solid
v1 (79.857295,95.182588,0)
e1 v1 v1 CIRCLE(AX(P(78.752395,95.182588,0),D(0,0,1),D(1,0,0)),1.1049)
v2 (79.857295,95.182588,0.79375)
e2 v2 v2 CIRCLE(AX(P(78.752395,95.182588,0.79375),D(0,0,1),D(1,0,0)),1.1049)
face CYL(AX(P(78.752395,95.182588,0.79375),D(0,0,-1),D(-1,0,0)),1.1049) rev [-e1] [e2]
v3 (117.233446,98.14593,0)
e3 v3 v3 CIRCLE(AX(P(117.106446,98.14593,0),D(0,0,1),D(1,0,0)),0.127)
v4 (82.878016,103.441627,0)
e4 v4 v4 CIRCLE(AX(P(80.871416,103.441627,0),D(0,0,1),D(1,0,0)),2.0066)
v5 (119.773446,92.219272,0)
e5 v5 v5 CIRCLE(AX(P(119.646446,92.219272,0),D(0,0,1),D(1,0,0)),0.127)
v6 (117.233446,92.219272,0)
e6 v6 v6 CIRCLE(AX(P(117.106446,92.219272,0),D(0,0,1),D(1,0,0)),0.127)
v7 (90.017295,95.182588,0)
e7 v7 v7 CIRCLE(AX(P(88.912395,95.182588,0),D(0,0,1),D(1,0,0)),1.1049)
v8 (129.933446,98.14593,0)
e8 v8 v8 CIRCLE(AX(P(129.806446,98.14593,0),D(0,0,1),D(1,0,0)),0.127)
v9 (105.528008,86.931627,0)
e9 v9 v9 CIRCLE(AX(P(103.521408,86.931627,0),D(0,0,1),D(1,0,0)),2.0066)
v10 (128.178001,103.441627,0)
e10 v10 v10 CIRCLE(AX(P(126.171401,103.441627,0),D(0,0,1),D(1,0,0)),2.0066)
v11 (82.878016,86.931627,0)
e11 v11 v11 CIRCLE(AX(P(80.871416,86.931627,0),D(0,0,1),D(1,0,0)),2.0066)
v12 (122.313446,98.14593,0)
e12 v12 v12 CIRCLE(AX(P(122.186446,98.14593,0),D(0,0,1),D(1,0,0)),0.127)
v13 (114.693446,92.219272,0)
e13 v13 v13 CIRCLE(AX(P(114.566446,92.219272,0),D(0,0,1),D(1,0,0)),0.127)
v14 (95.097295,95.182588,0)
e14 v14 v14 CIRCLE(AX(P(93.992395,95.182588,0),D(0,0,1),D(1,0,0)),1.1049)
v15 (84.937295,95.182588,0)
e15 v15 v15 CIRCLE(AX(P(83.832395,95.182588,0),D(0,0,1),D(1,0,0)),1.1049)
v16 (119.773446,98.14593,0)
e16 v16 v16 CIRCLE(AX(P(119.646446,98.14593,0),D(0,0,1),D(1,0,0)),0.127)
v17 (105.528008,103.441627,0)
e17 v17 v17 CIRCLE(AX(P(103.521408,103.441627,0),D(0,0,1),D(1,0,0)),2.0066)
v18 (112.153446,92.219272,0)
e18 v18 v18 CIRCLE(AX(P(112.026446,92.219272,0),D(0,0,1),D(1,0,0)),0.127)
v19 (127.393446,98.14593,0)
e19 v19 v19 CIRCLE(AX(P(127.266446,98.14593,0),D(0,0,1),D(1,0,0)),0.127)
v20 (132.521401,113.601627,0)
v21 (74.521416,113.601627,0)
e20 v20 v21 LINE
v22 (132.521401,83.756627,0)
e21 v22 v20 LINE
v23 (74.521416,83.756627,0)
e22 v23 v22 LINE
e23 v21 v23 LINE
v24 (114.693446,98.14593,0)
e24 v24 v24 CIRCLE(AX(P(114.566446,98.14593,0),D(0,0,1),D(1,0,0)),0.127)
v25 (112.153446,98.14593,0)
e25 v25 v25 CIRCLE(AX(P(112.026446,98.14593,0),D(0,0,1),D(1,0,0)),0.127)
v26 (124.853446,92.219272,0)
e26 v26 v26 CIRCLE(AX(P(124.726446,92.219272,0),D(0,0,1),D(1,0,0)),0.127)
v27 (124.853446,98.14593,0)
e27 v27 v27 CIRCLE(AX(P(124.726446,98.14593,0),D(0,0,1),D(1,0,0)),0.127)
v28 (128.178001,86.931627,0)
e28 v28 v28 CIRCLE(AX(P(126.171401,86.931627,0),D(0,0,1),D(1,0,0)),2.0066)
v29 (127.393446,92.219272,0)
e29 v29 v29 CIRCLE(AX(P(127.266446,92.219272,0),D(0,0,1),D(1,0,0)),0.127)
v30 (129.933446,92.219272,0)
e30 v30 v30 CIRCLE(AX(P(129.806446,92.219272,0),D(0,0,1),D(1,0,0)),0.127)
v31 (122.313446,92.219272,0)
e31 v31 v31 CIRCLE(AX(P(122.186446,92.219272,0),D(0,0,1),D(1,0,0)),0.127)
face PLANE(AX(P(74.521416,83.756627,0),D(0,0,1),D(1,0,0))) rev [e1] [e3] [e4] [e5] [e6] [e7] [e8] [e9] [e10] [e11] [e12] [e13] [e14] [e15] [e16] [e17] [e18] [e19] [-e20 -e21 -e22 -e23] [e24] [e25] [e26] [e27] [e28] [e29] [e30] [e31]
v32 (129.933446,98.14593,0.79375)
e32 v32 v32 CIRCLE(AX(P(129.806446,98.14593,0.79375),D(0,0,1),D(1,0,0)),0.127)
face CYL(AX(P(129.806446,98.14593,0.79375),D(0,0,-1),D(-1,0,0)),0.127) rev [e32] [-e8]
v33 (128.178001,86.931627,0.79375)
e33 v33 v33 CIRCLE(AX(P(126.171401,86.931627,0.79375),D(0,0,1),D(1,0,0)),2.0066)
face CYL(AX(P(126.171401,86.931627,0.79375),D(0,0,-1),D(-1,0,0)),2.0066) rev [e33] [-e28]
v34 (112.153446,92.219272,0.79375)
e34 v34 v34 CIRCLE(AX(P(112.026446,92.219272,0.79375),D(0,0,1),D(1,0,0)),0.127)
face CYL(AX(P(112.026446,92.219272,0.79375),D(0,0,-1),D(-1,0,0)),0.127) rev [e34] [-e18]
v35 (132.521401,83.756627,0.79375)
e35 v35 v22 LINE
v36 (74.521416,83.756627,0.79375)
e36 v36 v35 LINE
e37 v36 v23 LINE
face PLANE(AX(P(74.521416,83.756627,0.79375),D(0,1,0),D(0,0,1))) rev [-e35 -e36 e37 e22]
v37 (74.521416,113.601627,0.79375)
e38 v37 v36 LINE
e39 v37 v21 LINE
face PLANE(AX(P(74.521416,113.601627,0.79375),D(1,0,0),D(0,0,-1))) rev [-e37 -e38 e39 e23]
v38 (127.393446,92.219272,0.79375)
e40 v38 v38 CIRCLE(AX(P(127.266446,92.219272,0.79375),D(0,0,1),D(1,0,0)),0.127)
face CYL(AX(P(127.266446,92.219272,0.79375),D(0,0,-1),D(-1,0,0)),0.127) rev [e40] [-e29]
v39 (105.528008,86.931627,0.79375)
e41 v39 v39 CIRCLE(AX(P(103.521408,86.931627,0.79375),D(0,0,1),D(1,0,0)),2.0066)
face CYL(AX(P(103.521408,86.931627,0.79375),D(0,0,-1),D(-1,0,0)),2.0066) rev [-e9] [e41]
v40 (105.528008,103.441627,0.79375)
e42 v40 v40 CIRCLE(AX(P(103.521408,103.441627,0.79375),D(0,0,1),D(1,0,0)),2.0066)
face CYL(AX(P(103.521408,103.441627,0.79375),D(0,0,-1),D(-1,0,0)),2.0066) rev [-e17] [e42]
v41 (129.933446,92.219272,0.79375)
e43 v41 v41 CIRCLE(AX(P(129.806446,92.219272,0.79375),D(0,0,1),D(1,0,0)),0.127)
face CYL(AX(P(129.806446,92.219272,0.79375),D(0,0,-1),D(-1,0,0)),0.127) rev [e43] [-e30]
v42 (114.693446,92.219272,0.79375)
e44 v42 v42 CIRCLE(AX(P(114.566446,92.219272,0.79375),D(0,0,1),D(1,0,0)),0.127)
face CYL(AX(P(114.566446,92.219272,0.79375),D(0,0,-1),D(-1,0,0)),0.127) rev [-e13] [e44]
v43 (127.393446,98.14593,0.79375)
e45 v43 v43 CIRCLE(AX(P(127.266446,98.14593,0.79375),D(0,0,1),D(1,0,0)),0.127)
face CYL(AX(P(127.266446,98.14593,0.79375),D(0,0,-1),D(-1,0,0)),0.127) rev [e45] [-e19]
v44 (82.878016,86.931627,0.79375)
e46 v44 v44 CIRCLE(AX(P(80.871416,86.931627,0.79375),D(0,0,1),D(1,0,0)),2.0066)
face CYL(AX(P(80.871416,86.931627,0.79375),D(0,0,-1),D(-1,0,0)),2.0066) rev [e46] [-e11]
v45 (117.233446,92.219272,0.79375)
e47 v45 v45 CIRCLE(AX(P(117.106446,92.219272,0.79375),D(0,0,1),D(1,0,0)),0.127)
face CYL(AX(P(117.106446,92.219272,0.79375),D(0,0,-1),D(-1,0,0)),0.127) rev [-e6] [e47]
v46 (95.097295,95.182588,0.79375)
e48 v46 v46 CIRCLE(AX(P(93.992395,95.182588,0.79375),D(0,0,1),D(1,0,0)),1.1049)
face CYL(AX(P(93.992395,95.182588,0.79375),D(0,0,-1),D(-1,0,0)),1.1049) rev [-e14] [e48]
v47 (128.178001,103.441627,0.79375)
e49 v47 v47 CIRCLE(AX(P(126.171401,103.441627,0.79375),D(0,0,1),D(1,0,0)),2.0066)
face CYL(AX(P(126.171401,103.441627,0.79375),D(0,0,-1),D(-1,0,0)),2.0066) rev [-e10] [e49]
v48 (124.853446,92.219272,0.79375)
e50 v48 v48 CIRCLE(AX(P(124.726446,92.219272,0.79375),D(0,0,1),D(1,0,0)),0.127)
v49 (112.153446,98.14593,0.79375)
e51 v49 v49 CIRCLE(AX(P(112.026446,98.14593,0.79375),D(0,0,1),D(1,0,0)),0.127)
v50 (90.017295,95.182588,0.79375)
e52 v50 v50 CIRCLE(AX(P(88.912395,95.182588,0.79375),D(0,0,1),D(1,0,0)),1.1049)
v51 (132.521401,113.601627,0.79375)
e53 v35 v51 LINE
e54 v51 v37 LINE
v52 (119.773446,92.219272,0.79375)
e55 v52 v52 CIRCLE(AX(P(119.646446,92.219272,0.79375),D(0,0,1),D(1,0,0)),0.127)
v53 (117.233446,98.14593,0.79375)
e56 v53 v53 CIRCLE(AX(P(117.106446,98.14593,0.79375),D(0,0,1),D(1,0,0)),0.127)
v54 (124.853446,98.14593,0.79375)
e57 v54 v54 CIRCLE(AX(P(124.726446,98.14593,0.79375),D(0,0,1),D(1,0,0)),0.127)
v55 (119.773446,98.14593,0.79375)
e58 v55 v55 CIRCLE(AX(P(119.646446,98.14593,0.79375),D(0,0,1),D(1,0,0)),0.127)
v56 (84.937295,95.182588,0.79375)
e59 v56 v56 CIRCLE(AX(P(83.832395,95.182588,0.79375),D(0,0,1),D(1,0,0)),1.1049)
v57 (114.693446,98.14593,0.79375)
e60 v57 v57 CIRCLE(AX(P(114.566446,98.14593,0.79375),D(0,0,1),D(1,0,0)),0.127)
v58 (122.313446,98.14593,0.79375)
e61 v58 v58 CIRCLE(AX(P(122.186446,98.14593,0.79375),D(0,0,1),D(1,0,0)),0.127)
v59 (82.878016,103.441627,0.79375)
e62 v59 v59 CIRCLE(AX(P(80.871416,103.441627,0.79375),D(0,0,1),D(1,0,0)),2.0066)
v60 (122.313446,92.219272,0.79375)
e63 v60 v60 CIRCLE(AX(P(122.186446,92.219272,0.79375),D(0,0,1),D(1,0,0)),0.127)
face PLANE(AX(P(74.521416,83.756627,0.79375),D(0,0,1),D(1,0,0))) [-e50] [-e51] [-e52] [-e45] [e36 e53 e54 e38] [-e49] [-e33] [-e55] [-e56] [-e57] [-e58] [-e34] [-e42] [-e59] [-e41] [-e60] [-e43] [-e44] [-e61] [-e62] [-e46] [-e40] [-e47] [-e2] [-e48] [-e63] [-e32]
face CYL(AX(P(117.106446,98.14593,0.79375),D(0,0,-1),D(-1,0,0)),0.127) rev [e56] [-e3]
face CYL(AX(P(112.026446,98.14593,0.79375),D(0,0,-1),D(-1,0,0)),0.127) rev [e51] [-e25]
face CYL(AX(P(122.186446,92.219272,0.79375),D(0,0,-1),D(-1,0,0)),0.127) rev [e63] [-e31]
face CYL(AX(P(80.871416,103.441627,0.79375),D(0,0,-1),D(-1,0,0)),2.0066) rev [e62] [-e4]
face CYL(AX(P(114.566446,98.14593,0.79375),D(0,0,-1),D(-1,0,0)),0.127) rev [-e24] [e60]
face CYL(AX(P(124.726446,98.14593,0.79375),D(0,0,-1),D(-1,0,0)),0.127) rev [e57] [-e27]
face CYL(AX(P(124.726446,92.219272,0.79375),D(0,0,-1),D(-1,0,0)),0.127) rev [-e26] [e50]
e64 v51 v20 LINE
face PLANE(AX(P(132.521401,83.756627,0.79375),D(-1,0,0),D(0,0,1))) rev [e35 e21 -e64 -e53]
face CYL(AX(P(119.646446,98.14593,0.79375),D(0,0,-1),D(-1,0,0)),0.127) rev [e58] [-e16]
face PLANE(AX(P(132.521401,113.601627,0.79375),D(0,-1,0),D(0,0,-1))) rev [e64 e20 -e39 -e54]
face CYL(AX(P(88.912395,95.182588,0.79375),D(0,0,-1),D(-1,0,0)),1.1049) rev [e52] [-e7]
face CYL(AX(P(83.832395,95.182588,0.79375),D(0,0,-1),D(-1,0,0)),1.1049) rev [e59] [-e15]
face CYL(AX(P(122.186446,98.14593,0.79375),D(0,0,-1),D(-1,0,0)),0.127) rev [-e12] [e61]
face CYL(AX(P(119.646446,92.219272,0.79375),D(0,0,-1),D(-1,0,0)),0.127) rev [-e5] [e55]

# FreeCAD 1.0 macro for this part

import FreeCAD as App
import Part
import Sketcher
from FreeCAD import Vector
Q = App.Units.Quantity


def add_polygon(sketch, points):
    """Adds a closed chain of lines whose ends are joined by coincident constraints."""
    first, n = sketch.GeometryCount, len(points)
    for a, b in zip(points, points[1:] + points[:1]):
        sketch.addGeometry(Part.LineSegment(App.Vector(*a, 0), App.Vector(*b, 0)), False)
    for i in range(n):
        sketch.addConstraint(Sketcher.Constraint("Coincident", first + i, 2, first + (i + 1) % n, 1))

doc = App.newDocument("Part")
body = doc.addObject("PartDesign::Body", "Body")

sketch1 = doc.addObject("Sketcher::SketchObject", "Sketch")
body.addObject(sketch1)
sketch1.AttachmentSupport = (doc.XY_Plane, [""])
sketch1.MapMode = "FlatFace"
add_polygon(sketch1, [(74.52, 113.6), (74.52, 83.76), (132.52, 83.76), (132.52, 113.6)])
sketch1.addGeometry(Part.Circle(Vector(80.87, 86.93, 0), Vector(0, 0, 1), 2.01), False)
sketch1.addGeometry(Part.Circle(Vector(103.52, 86.93, 0), Vector(0, 0, 1), 2.01), False)
sketch1.addGeometry(Part.Circle(Vector(78.75, 95.18, 0), Vector(0, 0, 1), 1.1), False)
sketch1.addGeometry(Part.Circle(Vector(83.83, 95.18, 0), Vector(0, 0, 1), 1.1), False)
sketch1.addGeometry(Part.Circle(Vector(88.91, 95.18, 0), Vector(0, 0, 1), 1.1), False)
sketch1.addGeometry(Part.Circle(Vector(93.99, 95.18, 0), Vector(0, 0, 1), 1.1), False)
sketch1.addGeometry(Part.Circle(Vector(126.17, 86.93, 0), Vector(0, 0, 1), 2.01), False)
sketch1.addGeometry(Part.Circle(Vector(112.03, 92.22, 0), Vector(0, 0, 1), 0.13), False)
sketch1.addGeometry(Part.Circle(Vector(114.57, 92.22, 0), Vector(0, 0, 1), 0.13), False)
sketch1.addGeometry(Part.Circle(Vector(117.11, 92.22, 0), Vector(0, 0, 1), 0.13), False)
sketch1.addGeometry(Part.Circle(Vector(119.65, 92.22, 0), Vector(0, 0, 1), 0.13), False)
sketch1.addGeometry(Part.Circle(Vector(122.19, 92.22, 0), Vector(0, 0, 1), 0.13), False)
sketch1.addGeometry(Part.Circle(Vector(124.73, 92.22, 0), Vector(0, 0, 1), 0.13), False)
sketch1.addGeometry(Part.Circle(Vector(127.27, 92.22, 0), Vector(0, 0, 1), 0.13), False)
sketch1.addGeometry(Part.Circle(Vector(129.81, 92.22, 0), Vector(0, 0, 1), 0.13), False)
sketch1.addGeometry(Part.Circle(Vector(80.87, 103.44, 0), Vector(0, 0, 1), 2.01), False)
sketch1.addGeometry(Part.Circle(Vector(103.52, 103.44, 0), Vector(0, 0, 1), 2.01), False)
sketch1.addGeometry(Part.Circle(Vector(112.03, 98.15, 0), Vector(0, 0, 1), 0.13), False)
sketch1.addGeometry(Part.Circle(Vector(114.57, 98.15, 0), Vector(0, 0, 1), 0.13), False)
sketch1.addGeometry(Part.Circle(Vector(117.11, 98.15, 0), Vector(0, 0, 1), 0.13), False)
sketch1.addGeometry(Part.Circle(Vector(119.65, 98.15, 0), Vector(0, 0, 1), 0.13), False)
sketch1.addGeometry(Part.Circle(Vector(122.19, 98.15, 0), Vector(0, 0, 1), 0.13), False)
sketch1.addGeometry(Part.Circle(Vector(124.73, 98.15, 0), Vector(0, 0, 1), 0.13), False)
sketch1.addGeometry(Part.Circle(Vector(127.27, 98.15, 0), Vector(0, 0, 1), 0.13), False)
sketch1.addGeometry(Part.Circle(Vector(129.81, 98.15, 0), Vector(0, 0, 1), 0.13), False)
sketch1.addGeometry(Part.Circle(Vector(126.17, 103.44, 0), Vector(0, 0, 1), 2.01), False)
sketch1.addConstraint(Sketcher.Constraint("Vertical", 0))
sketch1.addConstraint(Sketcher.Constraint("Horizontal", 1))
sketch1.addConstraint(Sketcher.Constraint("Vertical", 2))
sketch1.addConstraint(Sketcher.Constraint("Horizontal", 3))
sketch1.addConstraint(Sketcher.Constraint("Equal", 4, 5))
sketch1.addConstraint(Sketcher.Constraint("Equal", 6, 7))
sketch1.addConstraint(Sketcher.Constraint("Equal", 7, 8))
sketch1.addConstraint(Sketcher.Constraint("Equal", 8, 9))
sketch1.addConstraint(Sketcher.Constraint("Equal", 5, 10))
sketch1.addConstraint(Sketcher.Constraint("Equal", 11, 12))
sketch1.addConstraint(Sketcher.Constraint("Equal", 12, 13))
sketch1.addConstraint(Sketcher.Constraint("Equal", 13, 14))
sketch1.addConstraint(Sketcher.Constraint("Equal", 14, 15))
sketch1.addConstraint(Sketcher.Constraint("Equal", 15, 16))
sketch1.addConstraint(Sketcher.Constraint("Equal", 16, 17))
sketch1.addConstraint(Sketcher.Constraint("Equal", 17, 18))
sketch1.addConstraint(Sketcher.Constraint("Equal", 10, 19))
sketch1.addConstraint(Sketcher.Constraint("Equal", 19, 20))
sketch1.addConstraint(Sketcher.Constraint("Equal", 18, 21))
sketch1.addConstraint(Sketcher.Constraint("Equal", 21, 22))
sketch1.addConstraint(Sketcher.Constraint("Equal", 22, 23))
sketch1.addConstraint(Sketcher.Constraint("Equal", 23, 24))
sketch1.addConstraint(Sketcher.Constraint("Equal", 24, 25))
sketch1.addConstraint(Sketcher.Constraint("Equal", 25, 26))
sketch1.addConstraint(Sketcher.Constraint("Equal", 26, 27))
sketch1.addConstraint(Sketcher.Constraint("Equal", 27, 28))
sketch1.addConstraint(Sketcher.Constraint("Equal", 20, 29))
sketch1.addConstraint(Sketcher.Constraint("Horizontal", 4, 3, 5, 3))
sketch1.addConstraint(Sketcher.Constraint("Horizontal", 6, 3, 7, 3))
sketch1.addConstraint(Sketcher.Constraint("Horizontal", 7, 3, 8, 3))
sketch1.addConstraint(Sketcher.Constraint("Horizontal", 8, 3, 9, 3))
sketch1.addConstraint(Sketcher.Constraint("Horizontal", 5, 3, 10, 3))
sketch1.addConstraint(Sketcher.Constraint("Horizontal", 11, 3, 12, 3))
sketch1.addConstraint(Sketcher.Constraint("Horizontal", 12, 3, 13, 3))
sketch1.addConstraint(Sketcher.Constraint("Horizontal", 13, 3, 14, 3))
sketch1.addConstraint(Sketcher.Constraint("Horizontal", 14, 3, 15, 3))
sketch1.addConstraint(Sketcher.Constraint("Horizontal", 15, 3, 16, 3))
sketch1.addConstraint(Sketcher.Constraint("Horizontal", 16, 3, 17, 3))
sketch1.addConstraint(Sketcher.Constraint("Horizontal", 17, 3, 18, 3))
sketch1.addConstraint(Sketcher.Constraint("Horizontal", 19, 3, 20, 3))
sketch1.addConstraint(Sketcher.Constraint("Horizontal", 21, 3, 22, 3))
sketch1.addConstraint(Sketcher.Constraint("Horizontal", 22, 3, 23, 3))
sketch1.addConstraint(Sketcher.Constraint("Horizontal", 23, 3, 24, 3))
sketch1.addConstraint(Sketcher.Constraint("Horizontal", 24, 3, 25, 3))
sketch1.addConstraint(Sketcher.Constraint("Horizontal", 25, 3, 26, 3))
sketch1.addConstraint(Sketcher.Constraint("Horizontal", 26, 3, 27, 3))
sketch1.addConstraint(Sketcher.Constraint("Horizontal", 27, 3, 28, 3))
sketch1.addConstraint(Sketcher.Constraint("Horizontal", 20, 3, 29, 3))
sketch1.addConstraint(Sketcher.Constraint("Vertical", 4, 3, 19, 3))
sketch1.addConstraint(Sketcher.Constraint("Vertical", 5, 3, 20, 3))
sketch1.addConstraint(Sketcher.Constraint("Vertical", 11, 3, 21, 3))
sketch1.addConstraint(Sketcher.Constraint("Vertical", 12, 3, 22, 3))
sketch1.addConstraint(Sketcher.Constraint("Vertical", 13, 3, 23, 3))
sketch1.addConstraint(Sketcher.Constraint("Vertical", 14, 3, 24, 3))
sketch1.addConstraint(Sketcher.Constraint("Vertical", 15, 3, 25, 3))
sketch1.addConstraint(Sketcher.Constraint("Vertical", 16, 3, 26, 3))
sketch1.addConstraint(Sketcher.Constraint("Vertical", 17, 3, 27, 3))
sketch1.addConstraint(Sketcher.Constraint("Vertical", 18, 3, 28, 3))
sketch1.addConstraint(Sketcher.Constraint("Vertical", 10, 3, 29, 3))
sketch1.addConstraint(Sketcher.Constraint("Diameter", 11, Q("0.01 in")))
sketch1.addConstraint(Sketcher.Constraint("Diameter", 4, Q("0.158 in")))
sketch1.addConstraint(Sketcher.Constraint("Diameter", 6, Q("0.087 in")))
sketch1.addConstraint(Sketcher.Constraint("DistanceX", 6, 3, 7, 3, Q("0.2 in")))
sketch1.addConstraint(Sketcher.Constraint("DistanceX", 7, 3, 8, 3, Q("0.2 in")))
sketch1.addConstraint(Sketcher.Constraint("DistanceX", 8, 3, 9, 3, Q("0.2 in")))
sketch1.addConstraint(Sketcher.Constraint("DistanceX", 11, 3, 12, 3, Q("0.1 in")))
sketch1.addConstraint(Sketcher.Constraint("DistanceX", 12, 3, 13, 3, Q("0.1 in")))
sketch1.addConstraint(Sketcher.Constraint("DistanceX", 13, 3, 14, 3, Q("0.1 in")))
sketch1.addConstraint(Sketcher.Constraint("DistanceX", 14, 3, 15, 3, Q("0.1 in")))
sketch1.addConstraint(Sketcher.Constraint("DistanceX", 15, 3, 16, 3, Q("0.1 in")))
sketch1.addConstraint(Sketcher.Constraint("DistanceX", 16, 3, 17, 3, Q("0.1 in")))
sketch1.addConstraint(Sketcher.Constraint("DistanceX", 17, 3, 18, 3, Q("0.1 in")))
sketch1.addConstraint(Sketcher.Constraint("DistanceY", 29, 3, 2, 2, Q("0.4 in")))
sketch1.addConstraint(Sketcher.Constraint("DistanceY", 0, 2, 0, 1, Q("1.175 in")))
sketch1.addConstraint(Sketcher.Constraint("DistanceY", 4, 3, 19, 3, Q("0.65 in")))
sketch1.addConstraint(Sketcher.Constraint("DistanceX", 0, 2, 4, 3, Q("0.25 in")))
sketch1.addConstraint(Sketcher.Constraint("DistanceX", 10, 3, 1, 2, Q("0.25 in")))
sketch1.addConstraint(Sketcher.Constraint("DistanceX", -1, 1, 10, 3, Q("126.171401 mm")))
sketch1.addConstraint(Sketcher.Constraint("DistanceX", 1, 1, 1, 2, Q("57.999986 mm")))
sketch1.addConstraint(Sketcher.Constraint("DistanceX", -1, 1, 5, 3, Q("103.521408 mm")))
sketch1.addConstraint(Sketcher.Constraint("DistanceY", -1, 1, 6, 3, Q("95.182588 mm")))
sketch1.addConstraint(Sketcher.Constraint("DistanceY", -1, 1, 21, 3, Q("98.14593 mm")))
sketch1.addConstraint(Sketcher.Constraint("DistanceX", 6, 3, 4, 3, Q("2.11902 mm")))
sketch1.addConstraint(Sketcher.Constraint("DistanceY", 4, 3, 6, 3, Q("8.250961 mm")))
sketch1.addConstraint(Sketcher.Constraint("DistanceX", 9, 3, 11, 3, Q("18.034051 mm")))
sketch1.addConstraint(Sketcher.Constraint("DistanceY", 11, 3, 21, 3, Q("5.926658 mm")))
pad1 = doc.addObject("PartDesign::Pad", "Pad")
body.addObject(pad1)
pad1.Profile = sketch1
pad1.Length = Q("0.03125 in")

doc.recompute()
